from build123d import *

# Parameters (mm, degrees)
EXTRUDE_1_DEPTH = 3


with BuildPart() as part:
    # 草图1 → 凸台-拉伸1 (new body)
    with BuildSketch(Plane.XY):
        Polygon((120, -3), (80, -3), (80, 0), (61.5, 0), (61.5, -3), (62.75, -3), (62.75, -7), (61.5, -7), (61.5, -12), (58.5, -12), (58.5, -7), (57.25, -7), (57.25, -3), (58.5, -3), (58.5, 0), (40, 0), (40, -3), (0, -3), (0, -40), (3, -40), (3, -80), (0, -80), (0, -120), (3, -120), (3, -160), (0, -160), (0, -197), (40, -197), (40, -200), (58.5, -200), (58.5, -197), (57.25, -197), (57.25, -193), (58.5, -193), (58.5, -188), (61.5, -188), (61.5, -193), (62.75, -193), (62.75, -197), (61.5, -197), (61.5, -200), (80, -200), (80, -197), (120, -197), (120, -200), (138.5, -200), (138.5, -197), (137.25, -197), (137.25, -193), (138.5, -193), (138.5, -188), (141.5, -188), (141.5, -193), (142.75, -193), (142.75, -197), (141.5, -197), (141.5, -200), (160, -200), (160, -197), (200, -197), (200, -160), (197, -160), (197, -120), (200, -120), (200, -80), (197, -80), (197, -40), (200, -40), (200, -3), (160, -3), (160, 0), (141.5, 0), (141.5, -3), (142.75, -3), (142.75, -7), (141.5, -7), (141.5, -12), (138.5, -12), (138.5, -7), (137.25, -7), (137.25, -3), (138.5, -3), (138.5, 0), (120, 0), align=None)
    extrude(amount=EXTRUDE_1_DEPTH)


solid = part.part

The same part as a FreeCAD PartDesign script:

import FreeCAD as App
import Part
import Sketcher

V = App.Vector
Q = App.Units.Quantity

doc = App.newDocument("Part")
body = doc.addObject("PartDesign::Body", "Body")

# Sketch on XY plane
sketch1 = body.newObject("Sketcher::SketchObject", "Sketch")
sketch1.AttachmentSupport = (doc.getObject("XY_Plane"), [""])
sketch1.MapMode = "FlatFace"
sketch1.addGeometry([
    Part.LineSegment(V(120, -3, 0), V(80, -3, 0)),  # 0
    Part.LineSegment(V(80, -3, 0), V(80, 0, 0)),  # 1
    Part.LineSegment(V(80, 0, 0), V(61.5, 0, 0)),  # 2
    Part.LineSegment(V(61.5, 0, 0), V(61.5, -3, 0)),  # 3
    Part.LineSegment(V(61.5, -3, 0), V(62.75, -3, 0)),  # 4
    Part.LineSegment(V(62.75, -3, 0), V(62.75, -7, 0)),  # 5
    Part.LineSegment(V(62.75, -7, 0), V(61.5, -7, 0)),  # 6
    Part.LineSegment(V(61.5, -7, 0), V(61.5, -12, 0)),  # 7
    Part.LineSegment(V(61.5, -12, 0), V(58.5, -12, 0)),  # 8
    Part.LineSegment(V(58.5, -12, 0), V(58.5, -7, 0)),  # 9
    Part.LineSegment(V(58.5, -7, 0), V(57.25, -7, 0)),  # 10
    Part.LineSegment(V(57.25, -7, 0), V(57.25, -3, 0)),  # 11
    Part.LineSegment(V(57.25, -3, 0), V(58.5, -3, 0)),  # 12
    Part.LineSegment(V(58.5, -3, 0), V(58.5, 0, 0)),  # 13
    Part.LineSegment(V(58.5, 0, 0), V(40, 0, 0)),  # 14
    Part.LineSegment(V(40, 0, 0), V(40, -3, 0)),  # 15
    Part.LineSegment(V(40, -3, 0), V(0, -3, 0)),  # 16
    Part.LineSegment(V(0, -3, 0), V(0, -40, 0)),  # 17
    Part.LineSegment(V(0, -40, 0), V(3, -40, 0)),  # 18
    Part.LineSegment(V(3, -40, 0), V(3, -80, 0)),  # 19
    Part.LineSegment(V(3, -80, 0), V(0, -80, 0)),  # 20
    Part.LineSegment(V(0, -80, 0), V(0, -120, 0)),  # 21
    Part.LineSegment(V(0, -120, 0), V(3, -120, 0)),  # 22
    Part.LineSegment(V(3, -120, 0), V(3, -160, 0)),  # 23
    Part.LineSegment(V(3, -160, 0), V(0, -160, 0)),  # 24
    Part.LineSegment(V(0, -160, 0), V(0, -197, 0)),  # 25
    Part.LineSegment(V(0, -197, 0), V(40, -197, 0)),  # 26
    Part.LineSegment(V(40, -197, 0), V(40, -200, 0)),  # 27
    Part.LineSegment(V(40, -200, 0), V(58.5, -200, 0)),  # 28
    Part.LineSegment(V(58.5, -200, 0), V(58.5, -197, 0)),  # 29
    Part.LineSegment(V(58.5, -197, 0), V(57.25, -197, 0)),  # 30
    Part.LineSegment(V(57.25, -197, 0), V(57.25, -193, 0)),  # 31
    Part.LineSegment(V(57.25, -193, 0), V(58.5, -193, 0)),  # 32
    Part.LineSegment(V(58.5, -193, 0), V(58.5, -188, 0)),  # 33
    Part.LineSegment(V(58.5, -188, 0), V(61.5, -188, 0)),  # 34
    Part.LineSegment(V(61.5, -188, 0), V(61.5, -193, 0)),  # 35
    Part.LineSegment(V(61.5, -193, 0), V(62.75, -193, 0)),  # 36
    Part.LineSegment(V(62.75, -193, 0), V(62.75, -197, 0)),  # 37
    Part.LineSegment(V(62.75, -197, 0), V(61.5, -197, 0)),  # 38
    Part.LineSegment(V(61.5, -197, 0), V(61.5, -200, 0)),  # 39
    Part.LineSegment(V(61.5, -200, 0), V(80, -200, 0)),  # 40
    Part.LineSegment(V(80, -200, 0), V(80, -197, 0)),  # 41
    Part.LineSegment(V(80, -197, 0), V(120, -197, 0)),  # 42
    Part.LineSegment(V(120, -197, 0), V(120, -200, 0)),  # 43
    Part.LineSegment(V(120, -200, 0), V(138.5, -200, 0)),  # 44
    Part.LineSegment(V(138.5, -200, 0), V(138.5, -197, 0)),  # 45
    Part.LineSegment(V(138.5, -197, 0), V(137.25, -197, 0)),  # 46
    Part.LineSegment(V(137.25, -197, 0), V(137.25, -193, 0)),  # 47
    Part.LineSegment(V(137.25, -193, 0), V(138.5, -193, 0)),  # 48
    Part.LineSegment(V(138.5, -193, 0), V(138.5, -188, 0)),  # 49
    Part.LineSegment(V(138.5, -188, 0), V(141.5, -188, 0)),  # 50
    Part.LineSegment(V(141.5, -188, 0), V(141.5, -193, 0)),  # 51
    Part.LineSegment(V(141.5, -193, 0), V(142.75, -193, 0)),  # 52
    Part.LineSegment(V(142.75, -193, 0), V(142.75, -197, 0)),  # 53
    Part.LineSegment(V(142.75, -197, 0), V(141.5, -197, 0)),  # 54
    Part.LineSegment(V(141.5, -197, 0), V(141.5, -200, 0)),  # 55
    Part.LineSegment(V(141.5, -200, 0), V(160, -200, 0)),  # 56
    Part.LineSegment(V(160, -200, 0), V(160, -197, 0)),  # 57
    Part.LineSegment(V(160, -197, 0), V(200, -197, 0)),  # 58
    Part.LineSegment(V(200, -197, 0), V(200, -160, 0)),  # 59
    Part.LineSegment(V(200, -160, 0), V(197, -160, 0)),  # 60
    Part.LineSegment(V(197, -160, 0), V(197, -120, 0)),  # 61
    Part.LineSegment(V(197, -120, 0), V(200, -120, 0)),  # 62
    Part.LineSegment(V(200, -120, 0), V(200, -80, 0)),  # 63
    Part.LineSegment(V(200, -80, 0), V(197, -80, 0)),  # 64
    Part.LineSegment(V(197, -80, 0), V(197, -40, 0)),  # 65
    Part.LineSegment(V(197, -40, 0), V(200, -40, 0)),  # 66
    Part.LineSegment(V(200, -40, 0), V(200, -3, 0)),  # 67
    Part.LineSegment(V(200, -3, 0), V(160, -3, 0)),  # 68
    Part.LineSegment(V(160, -3, 0), V(160, 0, 0)),  # 69
    Part.LineSegment(V(160, 0, 0), V(141.5, 0, 0)),  # 70
    Part.LineSegment(V(141.5, 0, 0), V(141.5, -3, 0)),  # 71
    Part.LineSegment(V(141.5, -3, 0), V(142.75, -3, 0)),  # 72
    Part.LineSegment(V(142.75, -3, 0), V(142.75, -7, 0)),  # 73
    Part.LineSegment(V(142.75, -7, 0), V(141.5, -7, 0)),  # 74
    Part.LineSegment(V(141.5, -7, 0), V(141.5, -12, 0)),  # 75
    Part.LineSegment(V(141.5, -12, 0), V(138.5, -12, 0)),  # 76
    Part.LineSegment(V(138.5, -12, 0), V(138.5, -7, 0)),  # 77
    Part.LineSegment(V(138.5, -7, 0), V(137.25, -7, 0)),  # 78
    Part.LineSegment(V(137.25, -7, 0), V(137.25, -3, 0)),  # 79
    Part.LineSegment(V(137.25, -3, 0), V(138.5, -3, 0)),  # 80
    Part.LineSegment(V(138.5, -3, 0), V(138.5, 0, 0)),  # 81
    Part.LineSegment(V(138.5, 0, 0), V(120, 0, 0)),  # 82
    Part.LineSegment(V(120, 0, 0), V(120, -3, 0)),  # 83
], False)
sketch1.addConstraint([
    Sketcher.Constraint("Coincident", 0, 2, 1, 1),
    Sketcher.Constraint("Coincident", 1, 2, 2, 1),
    Sketcher.Constraint("Coincident", 2, 2, 3, 1),
    Sketcher.Constraint("Coincident", 3, 2, 4, 1),
    Sketcher.Constraint("Coincident", 4, 2, 5, 1),
    Sketcher.Constraint("Coincident", 5, 2, 6, 1),
    Sketcher.Constraint("Coincident", 6, 2, 7, 1),
    Sketcher.Constraint("Coincident", 7, 2, 8, 1),
    Sketcher.Constraint("Coincident", 8, 2, 9, 1),
    Sketcher.Constraint("Coincident", 9, 2, 10, 1),
    Sketcher.Constraint("Coincident", 10, 2, 11, 1),
    Sketcher.Constraint("Coincident", 11, 2, 12, 1),
    Sketcher.Constraint("Coincident", 12, 2, 13, 1),
    Sketcher.Constraint("Coincident", 13, 2, 14, 1),
    Sketcher.Constraint("Coincident", 14, 2, 15, 1),
    Sketcher.Constraint("Coincident", 15, 2, 16, 1),
    Sketcher.Constraint("Coincident", 16, 2, 17, 1),
    Sketcher.Constraint("Coincident", 17, 2, 18, 1),
    Sketcher.Constraint("Coincident", 18, 2, 19, 1),
    Sketcher.Constraint("Coincident", 19, 2, 20, 1),
    Sketcher.Constraint("Coincident", 20, 2, 21, 1),
    Sketcher.Constraint("Coincident", 21, 2, 22, 1),
    Sketcher.Constraint("Coincident", 22, 2, 23, 1),
    Sketcher.Constraint("Coincident", 23, 2, 24, 1),
    Sketcher.Constraint("Coincident", 24, 2, 25, 1),
    Sketcher.Constraint("Coincident", 25, 2, 26, 1),
    Sketcher.Constraint("Coincident", 26, 2, 27, 1),
    Sketcher.Constraint("Coincident", 27, 2, 28, 1),
    Sketcher.Constraint("Coincident", 28, 2, 29, 1),
    Sketcher.Constraint("Coincident", 29, 2, 30, 1),
    Sketcher.Constraint("Coincident", 30, 2, 31, 1),
    Sketcher.Constraint("Coincident", 31, 2, 32, 1),
    Sketcher.Constraint("Coincident", 32, 2, 33, 1),
    Sketcher.Constraint("Coincident", 33, 2, 34, 1),
    Sketcher.Constraint("Coincident", 34, 2, 35, 1),
    Sketcher.Constraint("Coincident", 35, 2, 36, 1),
    Sketcher.Constraint("Coincident", 36, 2, 37, 1),
    Sketcher.Constraint("Coincident", 37, 2, 38, 1),
    Sketcher.Constraint("Coincident", 38, 2, 39, 1),
    Sketcher.Constraint("Coincident", 39, 2, 40, 1),
    Sketcher.Constraint("Coincident", 40, 2, 41, 1),
    Sketcher.Constraint("Coincident", 41, 2, 42, 1),
    Sketcher.Constraint("Coincident", 42, 2, 43, 1),
    Sketcher.Constraint("Coincident", 43, 2, 44, 1),
    Sketcher.Constraint("Coincident", 44, 2, 45, 1),
    Sketcher.Constraint("Coincident", 45, 2, 46, 1),
    Sketcher.Constraint("Coincident", 46, 2, 47, 1),
    Sketcher.Constraint("Coincident", 47, 2, 48, 1),
    Sketcher.Constraint("Coincident", 48, 2, 49, 1),
    Sketcher.Constraint("Coincident", 49, 2, 50, 1),
    Sketcher.Constraint("Coincident", 50, 2, 51, 1),
    Sketcher.Constraint("Coincident", 51, 2, 52, 1),
    Sketcher.Constraint("Coincident", 52, 2, 53, 1),
    Sketcher.Constraint("Coincident", 53, 2, 54, 1),
    Sketcher.Constraint("Coincident", 54, 2, 55, 1),
    Sketcher.Constraint("Coincident", 55, 2, 56, 1),
    Sketcher.Constraint("Coincident", 56, 2, 57, 1),
    Sketcher.Constraint("Coincident", 57, 2, 58, 1),
    Sketcher.Constraint("Coincident", 58, 2, 59, 1),
    Sketcher.Constraint("Coincident", 59, 2, 60, 1),
    Sketcher.Constraint("Coincident", 60, 2, 61, 1),
    Sketcher.Constraint("Coincident", 61, 2, 62, 1),
    Sketcher.Constraint("Coincident", 62, 2, 63, 1),
    Sketcher.Constraint("Coincident", 63, 2, 64, 1),
    Sketcher.Constraint("Coincident", 64, 2, 65, 1),
    Sketcher.Constraint("Coincident", 65, 2, 66, 1),
    Sketcher.Constraint("Coincident", 66, 2, 67, 1),
    Sketcher.Constraint("Coincident", 67, 2, 68, 1),
    Sketcher.Constraint("Coincident", 68, 2, 69, 1),
    Sketcher.Constraint("Coincident", 69, 2, 70, 1),
    Sketcher.Constraint("Coincident", 70, 2, 71, 1),
    Sketcher.Constraint("Coincident", 71, 2, 72, 1),
    Sketcher.Constraint("Coincident", 72, 2, 73, 1),
    Sketcher.Constraint("Coincident", 73, 2, 74, 1),
    Sketcher.Constraint("Coincident", 74, 2, 75, 1),
    Sketcher.Constraint("Coincident", 75, 2, 76, 1),
    Sketcher.Constraint("Coincident", 76, 2, 77, 1),
    Sketcher.Constraint("Coincident", 77, 2, 78, 1),
    Sketcher.Constraint("Coincident", 78, 2, 79, 1),
    Sketcher.Constraint("Coincident", 79, 2, 80, 1),
    Sketcher.Constraint("Coincident", 80, 2, 81, 1),
    Sketcher.Constraint("Coincident", 81, 2, 82, 1),
    Sketcher.Constraint("Coincident", 82, 2, 83, 1),
    Sketcher.Constraint("Coincident", 83, 2, 0, 1),
    Sketcher.Constraint("Horizontal", 0),
    Sketcher.Constraint("Vertical", 1),
    Sketcher.Constraint("Horizontal", 2),
    Sketcher.Constraint("Vertical", 3),
    Sketcher.Constraint("Horizontal", 4),
    Sketcher.Constraint("Vertical", 5),
    Sketcher.Constraint("Horizontal", 6),
    Sketcher.Constraint("Vertical", 7),
    Sketcher.Constraint("Horizontal", 8),
    Sketcher.Constraint("Vertical", 9),
    Sketcher.Constraint("Horizontal", 10),
    Sketcher.Constraint("Vertical", 11),
    Sketcher.Constraint("Horizontal", 12),
    Sketcher.Constraint("Vertical", 13),
    Sketcher.Constraint("Horizontal", 14),
    Sketcher.Constraint("Vertical", 15),
    Sketcher.Constraint("Horizontal", 16),
    Sketcher.Constraint("Vertical", 17),
    Sketcher.Constraint("Horizontal", 18),
    Sketcher.Constraint("Vertical", 19),
    Sketcher.Constraint("Horizontal", 20),
    Sketcher.Constraint("Vertical", 21),
    Sketcher.Constraint("Horizontal", 22),
    Sketcher.Constraint("Vertical", 23),
    Sketcher.Constraint("Horizontal", 24),
    Sketcher.Constraint("Vertical", 25),
    Sketcher.Constraint("Horizontal", 26),
    Sketcher.Constraint("Vertical", 27),
    Sketcher.Constraint("Horizontal", 28),
    Sketcher.Constraint("Vertical", 29),
    Sketcher.Constraint("Horizontal", 30),
    Sketcher.Constraint("Vertical", 31),
    Sketcher.Constraint("Horizontal", 32),
    Sketcher.Constraint("Vertical", 33),
    Sketcher.Constraint("Horizontal", 34),
    Sketcher.Constraint("Vertical", 35),
    Sketcher.Constraint("Horizontal", 36),
    Sketcher.Constraint("Vertical", 37),
    Sketcher.Constraint("Horizontal", 38),
    Sketcher.Constraint("Vertical", 39),
    Sketcher.Constraint("Horizontal", 40),
    Sketcher.Constraint("Vertical", 41),
    Sketcher.Constraint("Horizontal", 42),
    Sketcher.Constraint("Vertical", 43),
    Sketcher.Constraint("Horizontal", 44),
    Sketcher.Constraint("Vertical", 45),
    Sketcher.Constraint("Horizontal", 46),
    Sketcher.Constraint("Vertical", 47),
    Sketcher.Constraint("Horizontal", 48),
    Sketcher.Constraint("Vertical", 49),
    Sketcher.Constraint("Horizontal", 50),
    Sketcher.Constraint("Vertical", 51),
    Sketcher.Constraint("Horizontal", 52),
    Sketcher.Constraint("Vertical", 53),
    Sketcher.Constraint("Horizontal", 54),
    Sketcher.Constraint("Vertical", 55),
    Sketcher.Constraint("Horizontal", 56),
    Sketcher.Constraint("Vertical", 57),
    Sketcher.Constraint("Horizontal", 58),
    Sketcher.Constraint("Vertical", 59),
    Sketcher.Constraint("Horizontal", 60),
    Sketcher.Constraint("Vertical", 61),
    Sketcher.Constraint("Horizontal", 62),
    Sketcher.Constraint("Vertical", 63),
    Sketcher.Constraint("Horizontal", 64),
    Sketcher.Constraint("Vertical", 65),
    Sketcher.Constraint("Horizontal", 66),
    Sketcher.Constraint("Vertical", 67),
    Sketcher.Constraint("Horizontal", 68),
    Sketcher.Constraint("Vertical", 69),
    Sketcher.Constraint("Horizontal", 70),
    Sketcher.Constraint("Vertical", 71),
    Sketcher.Constraint("Horizontal", 72),
    Sketcher.Constraint("Vertical", 73),
    Sketcher.Constraint("Horizontal", 74),
    Sketcher.Constraint("Vertical", 75),
    Sketcher.Constraint("Horizontal", 76),
    Sketcher.Constraint("Vertical", 77),
    Sketcher.Constraint("Horizontal", 78),
    Sketcher.Constraint("Vertical", 79),
    Sketcher.Constraint("Horizontal", 80),
    Sketcher.Constraint("Vertical", 81),
    Sketcher.Constraint("Horizontal", 82),
    Sketcher.Constraint("Vertical", 83),
    Sketcher.Constraint("PointOnObject", 1, 2, -1),
    Sketcher.Constraint("PointOnObject", 13, 2, -1),
    Sketcher.Constraint("PointOnObject", 16, 2, -2),
    Sketcher.Constraint("PointOnObject", 20, 2, -2),
    Sketcher.Constraint("PointOnObject", 24, 2, -2),
    Sketcher.Constraint("PointOnObject", 69, 2, -1),
    Sketcher.Constraint("PointOnObject", 81, 2, -1),
    Sketcher.Constraint("Horizontal", 0, 2, 3, 2),
    Sketcher.Constraint("Horizontal", 6, 2, 9, 2),
    Sketcher.Constraint("Horizontal", 4, 2, 11, 2),
    Sketcher.Constraint("Horizontal", 12, 2, 15, 2),
    Sketcher.Constraint("Horizontal", 26, 2, 29, 2),
    Sketcher.Constraint("Horizontal", 32, 2, 35, 2),
    Sketcher.Constraint("Horizontal", 30, 2, 37, 2),
    Sketcher.Constraint("Horizontal", 28, 2, 39, 2),
    Sketcher.Constraint("Horizontal", 38, 2, 41, 2),
    Sketcher.Constraint("Horizontal", 40, 2, 43, 2),
    Sketcher.Constraint("Horizontal", 42, 2, 45, 2),
    Sketcher.Constraint("Horizontal", 36, 2, 47, 2),
    Sketcher.Constraint("Horizontal", 34, 2, 49, 2),
    Sketcher.Constraint("Horizontal", 48, 2, 51, 2),
    Sketcher.Constraint("Horizontal", 46, 2, 53, 2),
    Sketcher.Constraint("Horizontal", 44, 2, 55, 2),
    Sketcher.Constraint("Horizontal", 54, 2, 57, 2),
    Sketcher.Constraint("Horizontal", 24, 2, 59, 2),
    Sketcher.Constraint("Horizontal", 22, 2, 61, 2),
    Sketcher.Constraint("Horizontal", 20, 2, 63, 2),
    Sketcher.Constraint("Horizontal", 18, 2, 65, 2),
    Sketcher.Constraint("Horizontal", 16, 2, 67, 2),
    Sketcher.Constraint("Horizontal", 68, 2, 71, 2),
    Sketcher.Constraint("Horizontal", 10, 2, 73, 2),
    Sketcher.Constraint("Horizontal", 8, 2, 75, 2),
    Sketcher.Constraint("Horizontal", 74, 2, 77, 2),
    Sketcher.Constraint("Horizontal", 72, 2, 79, 2),
    Sketcher.Constraint("Vertical", 3, 2, 6, 2),
    Sketcher.Constraint("Vertical", 9, 2, 12, 2),
    Sketcher.Constraint("Vertical", 19, 2, 22, 2),
    Sketcher.Constraint("Vertical", 15, 2, 26, 2),
    Sketcher.Constraint("Vertical", 13, 2, 28, 2),
    Sketcher.Constraint("Vertical", 11, 2, 30, 2),
    Sketcher.Constraint("Vertical", 29, 2, 32, 2),
    Sketcher.Constraint("Vertical", 7, 2, 34, 2),
    Sketcher.Constraint("Vertical", 5, 2, 36, 2),
    Sketcher.Constraint("Vertical", 35, 2, 38, 2),
    Sketcher.Constraint("Vertical", 1, 2, 40, 2),
    Sketcher.Constraint("Vertical", 45, 2, 48, 2),
    Sketcher.Constraint("Vertical", 51, 2, 54, 2),
    Sketcher.Constraint("Vertical", 59, 2, 62, 2),
    Sketcher.Constraint("Vertical", 61, 2, 64, 2),
    Sketcher.Constraint("Vertical", 63, 2, 66, 2),
    Sketcher.Constraint("Vertical", 57, 2, 68, 2),
    Sketcher.Constraint("Vertical", 55, 2, 70, 2),
    Sketcher.Constraint("Vertical", 53, 2, 72, 2),
    Sketcher.Constraint("Vertical", 71, 2, 74, 2),
    Sketcher.Constraint("Vertical", 49, 2, 76, 2),
    Sketcher.Constraint("Vertical", 47, 2, 78, 2),
    Sketcher.Constraint("Vertical", 77, 2, 80, 2),
    Sketcher.Constraint("Vertical", 43, 2, 82, 2),
    Sketcher.Constraint("Equal", 6, 10),
    Sketcher.Constraint("Equal", 2, 14),
    Sketcher.Constraint("Equal", 0, 16),
    Sketcher.Constraint("Equal", 8, 18),
    Sketcher.Constraint("Equal", 40, 44),
    Sketcher.Constraint("Equal", 38, 46),
    Sketcher.Constraint("Equal", 34, 50),
    Sketcher.Constraint("Equal", 48, 52),
    Sketcher.Constraint("Equal", 44, 56),
    Sketcher.Constraint("Equal", 42, 58),
    Sketcher.Constraint("Equal", 50, 60),
    Sketcher.Constraint("Equal", 76, 1),
    Sketcher.Constraint("Equal", 68, 19),
    Sketcher.Constraint("Equal", 19, 21),
    Sketcher.Constraint("Equal", 21, 23),
    Sketcher.Constraint("Equal", 17, 25),
    Sketcher.Constraint("Equal", 15, 27),
    Sketcher.Constraint("Equal", 11, 31),
    Sketcher.Constraint("Equal", 9, 33),
    Sketcher.Constraint("DistanceX", 0, 2, 0, 1, Q("40 mm")),
    Sketcher.Constraint("DistanceX", 8, 2, 8, 1, Q("3 mm")),
    Sketcher.Constraint("DistanceY", 5, 2, 5, 1, Q("4 mm")),
    Sketcher.Constraint("DistanceY", 7, 2, 7, 1, Q("5 mm")),
    Sketcher.Constraint("DistanceY", 17, 2, 17, 1, Q("37 mm")),
    Sketcher.Constraint("DistanceX", 2, 2, 2, 1, Q("18.5 mm")),
    Sketcher.Constraint("DistanceX", 4, 1, 4, 2, Q("1.25 mm")),
])
pad1 = body.newObject("PartDesign::Pad", "Pad")
pad1.Profile = sketch1
pad1.Length = 3

doc.recompute()
